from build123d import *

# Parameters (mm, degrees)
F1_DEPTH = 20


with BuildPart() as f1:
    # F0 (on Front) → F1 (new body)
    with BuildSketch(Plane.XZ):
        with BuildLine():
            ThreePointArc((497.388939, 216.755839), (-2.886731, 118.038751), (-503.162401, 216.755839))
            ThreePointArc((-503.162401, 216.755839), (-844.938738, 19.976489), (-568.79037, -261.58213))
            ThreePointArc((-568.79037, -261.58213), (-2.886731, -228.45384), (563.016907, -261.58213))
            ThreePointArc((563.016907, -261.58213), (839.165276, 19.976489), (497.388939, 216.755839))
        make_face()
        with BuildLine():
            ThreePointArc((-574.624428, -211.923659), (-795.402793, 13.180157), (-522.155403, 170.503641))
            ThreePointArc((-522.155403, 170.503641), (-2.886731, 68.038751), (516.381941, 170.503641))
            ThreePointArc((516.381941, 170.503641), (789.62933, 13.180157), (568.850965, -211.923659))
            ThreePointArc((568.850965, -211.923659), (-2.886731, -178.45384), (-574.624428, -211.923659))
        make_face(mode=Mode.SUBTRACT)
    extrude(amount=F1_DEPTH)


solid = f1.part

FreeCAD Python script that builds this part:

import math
import FreeCAD as App
import Part
import Sketcher

V = App.Vector

doc = App.newDocument("Part")
params = doc.addObject("Spreadsheet::Sheet", "Params")
for row, (alias, value) in enumerate([
    ("sketch1_radius", "1316.999998 mm"),
    ("pad1_length", "20 mm"),
], start=1):
    params.set(f"A{row}", alias)
    params.set(f"B{row}", "=" + value)
    params.setAlias(f"B{row}", alias)

body = doc.addObject("PartDesign::Body", "Body")

# Sketch on XZ plane
sketch1 = doc.addObject("Sketcher::SketchObject", "Sketch")
body.addObject(sketch1)
sketch1.AttachmentSupport = (doc.XZ_Plane, [""])
sketch1.MapMode = "FlatFace"
sketch1.addGeometry([
    Part.ArcOfCircle(Part.Circle(V(-3, 1435, 0), V(0, 0, 1), 1317), math.radians(-112), math.radians(-68)),  # 0
    Part.ArcOfCircle(Part.Circle(V(-598, -14, 0), V(0, 0, 1), 249), math.radians(68), math.radians(277)),  # 1
    Part.ArcOfCircle(Part.Circle(V(-3, -5078, 0), V(0, 0, 1), 4850), math.radians(83.3), math.radians(96.7)),  # 2
    Part.ArcOfCircle(Part.Circle(V(592, -14, 0), V(0, 0, 1), 249), math.radians(-97), math.radians(112)),  # 3
    Part.ArcOfCircle(Part.Circle(V(-3, -5078, 0), V(0, 0, 1), 4900), math.radians(83.3), math.radians(96.7)),  # 4
    Part.ArcOfCircle(Part.Circle(V(-598, -14, 0), V(0, 0, 1), 199), math.radians(68), math.radians(277)),  # 5
    Part.ArcOfCircle(Part.Circle(V(-3, 1435, 0), V(0, 0, 1), 1367), math.radians(-112), math.radians(-68)),  # 6
    Part.ArcOfCircle(Part.Circle(V(592, -14, 0), V(0, 0, 1), 199), math.radians(-97), math.radians(112)),  # 7
], False)
sketch1.addConstraint([
    Sketcher.Constraint("Tangent", 0, 1, 1, 1),
    Sketcher.Constraint("Tangent", 1, 2, 2, 2),
    Sketcher.Constraint("Tangent", 2, 1, 3, 1),
    Sketcher.Constraint("Tangent", 3, 2, 0, 2),
    Sketcher.Constraint("Tangent", 4, 2, 5, 2),
    Sketcher.Constraint("Tangent", 5, 1, 6, 1),
    Sketcher.Constraint("Tangent", 6, 2, 7, 2),
    Sketcher.Constraint("Tangent", 7, 1, 4, 1),
    Sketcher.Constraint("Coincident", 5, 3, 1, 3),
    Sketcher.Constraint("Coincident", 6, 3, 0, 3),
    Sketcher.Constraint("Coincident", 7, 3, 3, 3),
    Sketcher.Constraint("Equal", 1, 3),
    Sketcher.Constraint("Horizontal", 1, 3, 3, 3),
    Sketcher.Constraint("Radius", 0, 1316.999998),
    Sketcher.Constraint("DistanceX", 1, 3, 0, 3, 595.0),
    Sketcher.Constraint("Radius", 1, 249.3664),
    Sketcher.Constraint("Radius", 5, 199.3664),
    Sketcher.Constraint("Radius", 2, 4849.99998),
    Sketcher.Constraint("Radius", 4, 4899.999943),
    Sketcher.Constraint("DistanceX", 0, 3, -1, 1, 2.886731),
    Sketcher.Constraint("DistanceY", -1, 1, 0, 3, 1435.038749),
])
sketch1.setExpression("Constraints[13]", "Params.sketch1_radius")
pad1 = doc.addObject("PartDesign::Pad", "Pad")
body.addObject(pad1)
pad1.Profile = sketch1
pad1.setExpression("Length", "Params.pad1_length")

doc.recompute()
